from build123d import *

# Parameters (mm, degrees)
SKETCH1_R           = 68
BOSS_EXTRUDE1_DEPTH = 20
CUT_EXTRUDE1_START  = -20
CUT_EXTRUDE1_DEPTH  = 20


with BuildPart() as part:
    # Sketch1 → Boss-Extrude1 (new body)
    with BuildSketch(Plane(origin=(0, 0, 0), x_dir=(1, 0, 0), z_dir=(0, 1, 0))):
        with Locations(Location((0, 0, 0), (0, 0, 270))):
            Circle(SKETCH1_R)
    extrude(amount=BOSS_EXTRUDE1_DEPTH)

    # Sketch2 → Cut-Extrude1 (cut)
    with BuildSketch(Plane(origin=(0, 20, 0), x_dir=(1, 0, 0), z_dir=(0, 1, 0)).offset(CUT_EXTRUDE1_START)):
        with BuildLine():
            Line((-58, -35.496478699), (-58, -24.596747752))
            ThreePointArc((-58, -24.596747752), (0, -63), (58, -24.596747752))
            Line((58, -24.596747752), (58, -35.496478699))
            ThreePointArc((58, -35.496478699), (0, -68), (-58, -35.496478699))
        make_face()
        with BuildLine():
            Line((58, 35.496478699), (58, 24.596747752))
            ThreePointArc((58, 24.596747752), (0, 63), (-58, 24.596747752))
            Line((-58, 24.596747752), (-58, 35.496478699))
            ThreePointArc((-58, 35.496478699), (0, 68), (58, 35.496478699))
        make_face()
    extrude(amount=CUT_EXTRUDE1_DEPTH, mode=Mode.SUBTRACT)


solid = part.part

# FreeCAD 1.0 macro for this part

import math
import FreeCAD as App
import Part
import Sketcher

V = App.Vector

doc = App.newDocument("Part")
body = doc.addObject("PartDesign::Body", "Body")

# Sketch on XZ plane
sketch1 = body.newObject("Sketcher::SketchObject", "Sketch")
sketch1.AttachmentSupport = (doc.getObject("XZ_Plane"), [""])
sketch1.MapMode = "FlatFace"
sketch1.addGeometry(Part.Circle(V(0, 0, 0), V(0, 0, 1), 68), False)
sketch1.addConstraint(Sketcher.Constraint("Coincident", 0, 3, -1, 1))
sketch1.addConstraint(Sketcher.Constraint("Diameter", 0, 136.0))
pad1 = body.newObject("PartDesign::Pad", "Pad")
pad1.Profile = sketch1
pad1.Length = 20
pad1.Reversed = True

# Sketch on XZ plane
sketch2 = body.newObject("Sketcher::SketchObject", "Sketch001")
sketch2.AttachmentSupport = (doc.getObject("XZ_Plane"), [""])
sketch2.MapMode = "FlatFace"
sketch2.addGeometry(Part.LineSegment(V(-58, 25, 0), V(-58, 35, 0)), False)
sketch2.addGeometry(Part.ArcOfCircle(Part.Circle(V(0, 0, 0), V(0, 0, 1), 68), math.radians(31), math.radians(149)), False)
sketch2.addGeometry(Part.LineSegment(V(58, 35, 0), V(58, 25, 0)), False)
sketch2.addGeometry(Part.ArcOfCircle(Part.Circle(V(0, 0, 0), V(0, 0, 1), 63), math.radians(23), math.radians(157)), False)
sketch2.addGeometry(Part.LineSegment(V(58, -25, 0), V(58, -35, 0)), False)
sketch2.addGeometry(Part.ArcOfCircle(Part.Circle(V(0, 0, 0), V(0, 0, 1), 68), math.radians(-149), math.radians(-31)), False)
sketch2.addGeometry(Part.LineSegment(V(-58, -35, 0), V(-58, -25, 0)), False)
sketch2.addGeometry(Part.ArcOfCircle(Part.Circle(V(0, 0, 0), V(0, 0, 1), 63), math.radians(-157), math.radians(-23)), False)
sketch2.addConstraint(Sketcher.Constraint("Coincident", 0, 2, 1, 2))
sketch2.addConstraint(Sketcher.Constraint("Coincident", 1, 1, 2, 1))
sketch2.addConstraint(Sketcher.Constraint("Coincident", 2, 2, 3, 1))
sketch2.addConstraint(Sketcher.Constraint("Coincident", 3, 2, 0, 1))
sketch2.addConstraint(Sketcher.Constraint("Coincident", 4, 2, 5, 2))
sketch2.addConstraint(Sketcher.Constraint("Coincident", 5, 1, 6, 1))
sketch2.addConstraint(Sketcher.Constraint("Coincident", 6, 2, 7, 1))
sketch2.addConstraint(Sketcher.Constraint("Coincident", 7, 2, 4, 1))
sketch2.addConstraint(Sketcher.Constraint("Vertical", 0))
sketch2.addConstraint(Sketcher.Constraint("Vertical", 2))
sketch2.addConstraint(Sketcher.Constraint("Vertical", 4))
sketch2.addConstraint(Sketcher.Constraint("Vertical", 6))
sketch2.addConstraint(Sketcher.Constraint("Coincident", 1, 3, -1, 1))
sketch2.addConstraint(Sketcher.Constraint("Coincident", 3, 3, -1, 1))
sketch2.addConstraint(Sketcher.Constraint("Coincident", 5, 3, -1, 1))
sketch2.addConstraint(Sketcher.Constraint("Coincident", 7, 3, -1, 1))
sketch2.addConstraint(Sketcher.Constraint("Equal", 1, 5))
sketch2.addConstraint(Sketcher.Constraint("Equal", 3, 7))
sketch2.addConstraint(Sketcher.Constraint("Horizontal", 0, 2, 1, 1))
sketch2.addConstraint(Sketcher.Constraint("Horizontal", 4, 2, 5, 1))
sketch2.addConstraint(Sketcher.Constraint("Vertical", 2, 2, 4, 2))
sketch2.addConstraint(Sketcher.Constraint("Radius", 1, 68.0))
sketch2.addConstraint(Sketcher.Constraint("Radius", 3, 63.0))
sketch2.addConstraint(Sketcher.Constraint("DistanceX", 0, 2, -1, 1, 58.0))
pocket1 = body.newObject("PartDesign::Pocket", "Pocket")
pocket1.Profile = sketch2
pocket1.Length = 20

doc.recompute()
